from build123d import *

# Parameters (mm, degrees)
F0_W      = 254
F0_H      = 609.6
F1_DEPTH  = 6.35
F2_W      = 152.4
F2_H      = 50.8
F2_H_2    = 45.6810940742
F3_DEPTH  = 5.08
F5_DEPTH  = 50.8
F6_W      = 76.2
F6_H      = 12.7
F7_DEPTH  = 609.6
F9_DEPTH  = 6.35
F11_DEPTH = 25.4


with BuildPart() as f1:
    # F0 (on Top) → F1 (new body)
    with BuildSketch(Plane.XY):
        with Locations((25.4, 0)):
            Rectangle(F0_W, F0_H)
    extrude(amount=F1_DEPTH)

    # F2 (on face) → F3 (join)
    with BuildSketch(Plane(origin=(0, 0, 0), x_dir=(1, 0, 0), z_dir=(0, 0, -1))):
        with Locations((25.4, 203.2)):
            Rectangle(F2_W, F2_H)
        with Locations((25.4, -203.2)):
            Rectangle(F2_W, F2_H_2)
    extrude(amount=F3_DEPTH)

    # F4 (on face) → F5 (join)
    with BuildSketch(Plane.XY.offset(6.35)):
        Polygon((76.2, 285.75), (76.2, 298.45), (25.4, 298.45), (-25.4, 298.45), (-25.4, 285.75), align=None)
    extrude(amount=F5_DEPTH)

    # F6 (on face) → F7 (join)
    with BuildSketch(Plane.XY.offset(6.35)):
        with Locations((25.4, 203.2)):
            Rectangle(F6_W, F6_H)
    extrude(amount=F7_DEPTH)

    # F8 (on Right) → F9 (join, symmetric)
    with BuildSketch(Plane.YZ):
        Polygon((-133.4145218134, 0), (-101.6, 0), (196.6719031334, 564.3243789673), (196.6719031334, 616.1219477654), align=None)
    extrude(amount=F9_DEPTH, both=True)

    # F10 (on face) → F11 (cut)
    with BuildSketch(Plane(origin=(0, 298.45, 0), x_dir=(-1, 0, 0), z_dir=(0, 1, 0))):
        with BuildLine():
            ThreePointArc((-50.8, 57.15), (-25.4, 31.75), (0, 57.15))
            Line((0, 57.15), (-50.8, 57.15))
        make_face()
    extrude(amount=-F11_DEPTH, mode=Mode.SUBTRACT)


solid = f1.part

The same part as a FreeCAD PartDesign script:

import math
import FreeCAD as App
import Part
import Sketcher
from FreeCAD import Vector
Q = App.Units.Quantity

doc = App.newDocument("Part")
body = doc.addObject("PartDesign::Body", "Body")

# Sketch on XY plane
sketch1 = body.newObject("Sketcher::SketchObject", "Sketch")
sketch1.AttachmentSupport = (doc.getObject("XY_Plane"), [""])
sketch1.MapMode = "FlatFace"
sketch1.addGeometry([
    Part.LineSegment(Vector(-102, 305, 0), Vector(-102, -305, 0)),
    Part.LineSegment(Vector(-102, -305, 0), Vector(152, -305, 0)),
    Part.LineSegment(Vector(152, -305, 0), Vector(152, 305, 0)),
    Part.LineSegment(Vector(152, 305, 0), Vector(-102, 305, 0)),
], False)
sketch1.addConstraint([
    Sketcher.Constraint("Coincident", 0, 2, 1, 1),
    Sketcher.Constraint("Coincident", 1, 2, 2, 1),
    Sketcher.Constraint("Coincident", 2, 2, 3, 1),
    Sketcher.Constraint("Coincident", 3, 2, 0, 1),
    Sketcher.Constraint("Vertical", 0),
    Sketcher.Constraint("Horizontal", 1),
    Sketcher.Constraint("Vertical", 2),
    Sketcher.Constraint("Horizontal", 3),
    Sketcher.Constraint("DistanceX", 1, 1, 1, 2, Q("10 in")),
    Sketcher.Constraint("DistanceY", 0, 2, 0, 1, Q("24 in")),
    Sketcher.Constraint("DistanceX", 0, 2, -1, 1, Q("4 in")),
    Sketcher.Constraint("DistanceY", 0, 2, -1, 1, Q("12 in")),
])
pad1 = body.newObject("PartDesign::Pad", "Pad")
pad1.Profile = sketch1
pad1.Length = Q("0.25 in")

# Sketch on XY plane
sketch2 = body.newObject("Sketcher::SketchObject", "Sketch001")
sketch2.AttachmentSupport = (doc.getObject("XY_Plane"), [""])
sketch2.MapMode = "FlatFace"
sketch2.addGeometry([
    Part.LineSegment(Vector(-51, -229, 0), Vector(-51, -178, 0)),  # 0
    Part.LineSegment(Vector(-51, -178, 0), Vector(102, -178, 0)),  # 1
    Part.LineSegment(Vector(102, -178, 0), Vector(102, -229, 0)),  # 2
    Part.LineSegment(Vector(102, -229, 0), Vector(-51, -229, 0)),  # 3
    Part.LineSegment(Vector(-51, 180, 0), Vector(-51, 226, 0)),  # 4
    Part.LineSegment(Vector(-51, 226, 0), Vector(102, 226, 0)),  # 5
    Part.LineSegment(Vector(102, 226, 0), Vector(102, 180, 0)),  # 6
    Part.LineSegment(Vector(102, 180, 0), Vector(-51, 180, 0)),  # 7
], False)
sketch2.addConstraint([
    Sketcher.Constraint("Coincident", 0, 2, 1, 1),
    Sketcher.Constraint("Coincident", 1, 2, 2, 1),
    Sketcher.Constraint("Coincident", 2, 2, 3, 1),
    Sketcher.Constraint("Coincident", 3, 2, 0, 1),
    Sketcher.Constraint("Coincident", 4, 2, 5, 1),
    Sketcher.Constraint("Coincident", 5, 2, 6, 1),
    Sketcher.Constraint("Coincident", 6, 2, 7, 1),
    Sketcher.Constraint("Coincident", 7, 2, 4, 1),
    Sketcher.Constraint("Vertical", 0),
    Sketcher.Constraint("Horizontal", 1),
    Sketcher.Constraint("Vertical", 2),
    Sketcher.Constraint("Horizontal", 3),
    Sketcher.Constraint("Vertical", 4),
    Sketcher.Constraint("Horizontal", 5),
    Sketcher.Constraint("Vertical", 6),
    Sketcher.Constraint("Horizontal", 7),
    Sketcher.Constraint("Vertical", 3, 2, 4, 2),
    Sketcher.Constraint("Vertical", 2, 2, 5, 2),
    Sketcher.Constraint("DistanceX", 1, 1, 1, 2, Q("6 in")),
    Sketcher.Constraint("DistanceY", 0, 1, 0, 2, Q("2 in")),
    Sketcher.Constraint("DistanceX", 0, 2, -1, 1, Q("2 in")),
    Sketcher.Constraint("DistanceY", 0, 2, -1, 1, Q("7 in")),
    Sketcher.Constraint("DistanceY", 4, 1, 4, 2, Q("45.681094 mm")),
    Sketcher.Constraint("DistanceY", -1, 1, 4, 2, Q("226.040547 mm")),
])
pad2 = body.newObject("PartDesign::Pad", "Pad001")
pad2.Profile = sketch2
pad2.Length = Q("0.2 in")
pad2.Reversed = True

# Sketch on XY plane
sketch3 = body.newObject("Sketcher::SketchObject", "Sketch002")
sketch3.AttachmentSupport = (doc.getObject("XY_Plane"), [""])
sketch3.MapMode = "FlatFace"
sketch3.AttachmentOffset = App.Placement(Vector(0, 0, 0.25 * 25.4), App.Rotation())
sketch3.addGeometry([
    Part.LineSegment(Vector(76, 286, 0), Vector(76, 298, 0)),
    Part.LineSegment(Vector(76, 298, 0), Vector(-25, 298, 0)),
    Part.LineSegment(Vector(-25, 298, 0), Vector(-25, 286, 0)),
    Part.LineSegment(Vector(-25, 286, 0), Vector(76, 286, 0)),
], False)
sketch3.addConstraint([
    Sketcher.Constraint("Coincident", 0, 2, 1, 1),
    Sketcher.Constraint("Coincident", 1, 2, 2, 1),
    Sketcher.Constraint("Coincident", 2, 2, 3, 1),
    Sketcher.Constraint("Coincident", 3, 2, 0, 1),
    Sketcher.Constraint("Vertical", 0),
    Sketcher.Constraint("Horizontal", 1),
    Sketcher.Constraint("Vertical", 2),
    Sketcher.Constraint("Horizontal", 3),
    Sketcher.Constraint("DistanceX", 1, 2, 1, 1, Q("4 in")),
    Sketcher.Constraint("DistanceY", 0, 1, 0, 2, Q("0.5 in")),
    Sketcher.Constraint("DistanceX", -1, 1, 0, 2, Q("3 in")),
    Sketcher.Constraint("DistanceY", -1, 1, 0, 2, Q("11.75 in")),
])
pad3 = body.newObject("PartDesign::Pad", "Pad002")
pad3.Profile = sketch3
pad3.Length = Q("2 in")

# Sketch on XY plane
sketch4 = body.newObject("Sketcher::SketchObject", "Sketch003")
sketch4.AttachmentSupport = (doc.getObject("XY_Plane"), [""])
sketch4.MapMode = "FlatFace"
sketch4.AttachmentOffset = App.Placement(Vector(0, 0, 0.25 * 25.4), App.Rotation())
sketch4.addGeometry([
    Part.LineSegment(Vector(-13, 210, 0), Vector(-13, 197, 0)),
    Part.LineSegment(Vector(-13, 197, 0), Vector(64, 197, 0)),
    Part.LineSegment(Vector(64, 197, 0), Vector(64, 210, 0)),
    Part.LineSegment(Vector(64, 210, 0), Vector(-13, 210, 0)),
], False)
sketch4.addConstraint([
    Sketcher.Constraint("Coincident", 0, 2, 1, 1),
    Sketcher.Constraint("Coincident", 1, 2, 2, 1),
    Sketcher.Constraint("Coincident", 2, 2, 3, 1),
    Sketcher.Constraint("Coincident", 3, 2, 0, 1),
    Sketcher.Constraint("Vertical", 0),
    Sketcher.Constraint("Horizontal", 1),
    Sketcher.Constraint("Vertical", 2),
    Sketcher.Constraint("Horizontal", 3),
    Sketcher.Constraint("DistanceX", 1, 1, 1, 2, Q("3 in")),
    Sketcher.Constraint("DistanceY", 0, 2, 0, 1, Q("0.5 in")),
    Sketcher.Constraint("DistanceX", 0, 2, -1, 1, Q("0.5 in")),
    Sketcher.Constraint("DistanceY", -1, 1, 0, 2, Q("7.75 in")),
])
pad4 = body.newObject("PartDesign::Pad", "Pad003")
pad4.Profile = sketch4
pad4.Length = Q("24 in")

# Sketch on YZ plane
sketch5 = body.newObject("Sketcher::SketchObject", "Sketch004")
sketch5.AttachmentSupport = (doc.getObject("YZ_Plane"), [""])
sketch5.MapMode = "FlatFace"
sketch5.addGeometry([
    Part.LineSegment(Vector(-133, 0, 0), Vector(-102, 0, 0)),
    Part.LineSegment(Vector(-102, 0, 0), Vector(197, 564, 0)),
    Part.LineSegment(Vector(197, 564, 0), Vector(197, 616, 0)),
    Part.LineSegment(Vector(197, 616, 0), Vector(-133, 0, 0)),
], False)
sketch5.addConstraint([
    Sketcher.Constraint("Coincident", 0, 2, 1, 1),
    Sketcher.Constraint("Coincident", 1, 2, 2, 1),
    Sketcher.Constraint("Coincident", 2, 2, 3, 1),
    Sketcher.Constraint("Coincident", 3, 2, 0, 1),
    Sketcher.Constraint("Horizontal", 0),
    Sketcher.Constraint("Vertical", 2),
    Sketcher.Constraint("PointOnObject", 0, 2, -1),
    Sketcher.Constraint("DistanceX", 0, 2, -1, 1, Q("4 in")),
    Sketcher.Constraint("DistanceX", 0, 1, 0, 2, Q("31.814522 mm")),
    Sketcher.Constraint("DistanceY", 2, 1, 2, 2, Q("51.797569 mm")),
    Sketcher.Constraint("DistanceY", -1, 1, 1, 2, Q("564.324379 mm")),
    Sketcher.Constraint("Distance", 1, Q("638.300974 mm")),
])
pad5 = body.newObject("PartDesign::Pad", "Pad004")
pad5.Profile = sketch5
pad5.Length = Q("0.5 in")
pad5.Midplane = True

# Sketch on XZ plane
sketch6 = body.newObject("Sketcher::SketchObject", "Sketch005")
sketch6.AttachmentSupport = (doc.getObject("XZ_Plane"), [""])
sketch6.MapMode = "FlatFace"
sketch6.AttachmentOffset = App.Placement(Vector(0, 0, -11.75 * 25.4), App.Rotation())
sketch6.addGeometry([
    Part.ArcOfCircle(Part.Circle(Vector(25, 57, 0), Vector(0, 0, 1), 25), math.radians(180), math.radians(360)),
    Part.LineSegment(Vector(0, 57, 0), Vector(51, 57, 0)),
], False)
sketch6.addConstraint([
    Sketcher.Constraint("Coincident", 0, 1, 1, 1),
    Sketcher.Constraint("Coincident", 1, 2, 0, 2),
    Sketcher.Constraint("Horizontal", 1),
    Sketcher.Constraint("PointOnObject", 0, 1, -2),
    Sketcher.Constraint("Radius", 0, Q("1 in")),
    Sketcher.Constraint("DistanceY", -1, 1, 0, 3, Q("2.25 in")),
    Sketcher.Constraint("DistanceY", -1, 1, 0, 1, Q("2.25 in")),
])
pocket1 = body.newObject("PartDesign::Pocket", "Pocket")
pocket1.Profile = sketch6
pocket1.Length = Q("1 in")
pocket1.Reversed = True

doc.recompute()
